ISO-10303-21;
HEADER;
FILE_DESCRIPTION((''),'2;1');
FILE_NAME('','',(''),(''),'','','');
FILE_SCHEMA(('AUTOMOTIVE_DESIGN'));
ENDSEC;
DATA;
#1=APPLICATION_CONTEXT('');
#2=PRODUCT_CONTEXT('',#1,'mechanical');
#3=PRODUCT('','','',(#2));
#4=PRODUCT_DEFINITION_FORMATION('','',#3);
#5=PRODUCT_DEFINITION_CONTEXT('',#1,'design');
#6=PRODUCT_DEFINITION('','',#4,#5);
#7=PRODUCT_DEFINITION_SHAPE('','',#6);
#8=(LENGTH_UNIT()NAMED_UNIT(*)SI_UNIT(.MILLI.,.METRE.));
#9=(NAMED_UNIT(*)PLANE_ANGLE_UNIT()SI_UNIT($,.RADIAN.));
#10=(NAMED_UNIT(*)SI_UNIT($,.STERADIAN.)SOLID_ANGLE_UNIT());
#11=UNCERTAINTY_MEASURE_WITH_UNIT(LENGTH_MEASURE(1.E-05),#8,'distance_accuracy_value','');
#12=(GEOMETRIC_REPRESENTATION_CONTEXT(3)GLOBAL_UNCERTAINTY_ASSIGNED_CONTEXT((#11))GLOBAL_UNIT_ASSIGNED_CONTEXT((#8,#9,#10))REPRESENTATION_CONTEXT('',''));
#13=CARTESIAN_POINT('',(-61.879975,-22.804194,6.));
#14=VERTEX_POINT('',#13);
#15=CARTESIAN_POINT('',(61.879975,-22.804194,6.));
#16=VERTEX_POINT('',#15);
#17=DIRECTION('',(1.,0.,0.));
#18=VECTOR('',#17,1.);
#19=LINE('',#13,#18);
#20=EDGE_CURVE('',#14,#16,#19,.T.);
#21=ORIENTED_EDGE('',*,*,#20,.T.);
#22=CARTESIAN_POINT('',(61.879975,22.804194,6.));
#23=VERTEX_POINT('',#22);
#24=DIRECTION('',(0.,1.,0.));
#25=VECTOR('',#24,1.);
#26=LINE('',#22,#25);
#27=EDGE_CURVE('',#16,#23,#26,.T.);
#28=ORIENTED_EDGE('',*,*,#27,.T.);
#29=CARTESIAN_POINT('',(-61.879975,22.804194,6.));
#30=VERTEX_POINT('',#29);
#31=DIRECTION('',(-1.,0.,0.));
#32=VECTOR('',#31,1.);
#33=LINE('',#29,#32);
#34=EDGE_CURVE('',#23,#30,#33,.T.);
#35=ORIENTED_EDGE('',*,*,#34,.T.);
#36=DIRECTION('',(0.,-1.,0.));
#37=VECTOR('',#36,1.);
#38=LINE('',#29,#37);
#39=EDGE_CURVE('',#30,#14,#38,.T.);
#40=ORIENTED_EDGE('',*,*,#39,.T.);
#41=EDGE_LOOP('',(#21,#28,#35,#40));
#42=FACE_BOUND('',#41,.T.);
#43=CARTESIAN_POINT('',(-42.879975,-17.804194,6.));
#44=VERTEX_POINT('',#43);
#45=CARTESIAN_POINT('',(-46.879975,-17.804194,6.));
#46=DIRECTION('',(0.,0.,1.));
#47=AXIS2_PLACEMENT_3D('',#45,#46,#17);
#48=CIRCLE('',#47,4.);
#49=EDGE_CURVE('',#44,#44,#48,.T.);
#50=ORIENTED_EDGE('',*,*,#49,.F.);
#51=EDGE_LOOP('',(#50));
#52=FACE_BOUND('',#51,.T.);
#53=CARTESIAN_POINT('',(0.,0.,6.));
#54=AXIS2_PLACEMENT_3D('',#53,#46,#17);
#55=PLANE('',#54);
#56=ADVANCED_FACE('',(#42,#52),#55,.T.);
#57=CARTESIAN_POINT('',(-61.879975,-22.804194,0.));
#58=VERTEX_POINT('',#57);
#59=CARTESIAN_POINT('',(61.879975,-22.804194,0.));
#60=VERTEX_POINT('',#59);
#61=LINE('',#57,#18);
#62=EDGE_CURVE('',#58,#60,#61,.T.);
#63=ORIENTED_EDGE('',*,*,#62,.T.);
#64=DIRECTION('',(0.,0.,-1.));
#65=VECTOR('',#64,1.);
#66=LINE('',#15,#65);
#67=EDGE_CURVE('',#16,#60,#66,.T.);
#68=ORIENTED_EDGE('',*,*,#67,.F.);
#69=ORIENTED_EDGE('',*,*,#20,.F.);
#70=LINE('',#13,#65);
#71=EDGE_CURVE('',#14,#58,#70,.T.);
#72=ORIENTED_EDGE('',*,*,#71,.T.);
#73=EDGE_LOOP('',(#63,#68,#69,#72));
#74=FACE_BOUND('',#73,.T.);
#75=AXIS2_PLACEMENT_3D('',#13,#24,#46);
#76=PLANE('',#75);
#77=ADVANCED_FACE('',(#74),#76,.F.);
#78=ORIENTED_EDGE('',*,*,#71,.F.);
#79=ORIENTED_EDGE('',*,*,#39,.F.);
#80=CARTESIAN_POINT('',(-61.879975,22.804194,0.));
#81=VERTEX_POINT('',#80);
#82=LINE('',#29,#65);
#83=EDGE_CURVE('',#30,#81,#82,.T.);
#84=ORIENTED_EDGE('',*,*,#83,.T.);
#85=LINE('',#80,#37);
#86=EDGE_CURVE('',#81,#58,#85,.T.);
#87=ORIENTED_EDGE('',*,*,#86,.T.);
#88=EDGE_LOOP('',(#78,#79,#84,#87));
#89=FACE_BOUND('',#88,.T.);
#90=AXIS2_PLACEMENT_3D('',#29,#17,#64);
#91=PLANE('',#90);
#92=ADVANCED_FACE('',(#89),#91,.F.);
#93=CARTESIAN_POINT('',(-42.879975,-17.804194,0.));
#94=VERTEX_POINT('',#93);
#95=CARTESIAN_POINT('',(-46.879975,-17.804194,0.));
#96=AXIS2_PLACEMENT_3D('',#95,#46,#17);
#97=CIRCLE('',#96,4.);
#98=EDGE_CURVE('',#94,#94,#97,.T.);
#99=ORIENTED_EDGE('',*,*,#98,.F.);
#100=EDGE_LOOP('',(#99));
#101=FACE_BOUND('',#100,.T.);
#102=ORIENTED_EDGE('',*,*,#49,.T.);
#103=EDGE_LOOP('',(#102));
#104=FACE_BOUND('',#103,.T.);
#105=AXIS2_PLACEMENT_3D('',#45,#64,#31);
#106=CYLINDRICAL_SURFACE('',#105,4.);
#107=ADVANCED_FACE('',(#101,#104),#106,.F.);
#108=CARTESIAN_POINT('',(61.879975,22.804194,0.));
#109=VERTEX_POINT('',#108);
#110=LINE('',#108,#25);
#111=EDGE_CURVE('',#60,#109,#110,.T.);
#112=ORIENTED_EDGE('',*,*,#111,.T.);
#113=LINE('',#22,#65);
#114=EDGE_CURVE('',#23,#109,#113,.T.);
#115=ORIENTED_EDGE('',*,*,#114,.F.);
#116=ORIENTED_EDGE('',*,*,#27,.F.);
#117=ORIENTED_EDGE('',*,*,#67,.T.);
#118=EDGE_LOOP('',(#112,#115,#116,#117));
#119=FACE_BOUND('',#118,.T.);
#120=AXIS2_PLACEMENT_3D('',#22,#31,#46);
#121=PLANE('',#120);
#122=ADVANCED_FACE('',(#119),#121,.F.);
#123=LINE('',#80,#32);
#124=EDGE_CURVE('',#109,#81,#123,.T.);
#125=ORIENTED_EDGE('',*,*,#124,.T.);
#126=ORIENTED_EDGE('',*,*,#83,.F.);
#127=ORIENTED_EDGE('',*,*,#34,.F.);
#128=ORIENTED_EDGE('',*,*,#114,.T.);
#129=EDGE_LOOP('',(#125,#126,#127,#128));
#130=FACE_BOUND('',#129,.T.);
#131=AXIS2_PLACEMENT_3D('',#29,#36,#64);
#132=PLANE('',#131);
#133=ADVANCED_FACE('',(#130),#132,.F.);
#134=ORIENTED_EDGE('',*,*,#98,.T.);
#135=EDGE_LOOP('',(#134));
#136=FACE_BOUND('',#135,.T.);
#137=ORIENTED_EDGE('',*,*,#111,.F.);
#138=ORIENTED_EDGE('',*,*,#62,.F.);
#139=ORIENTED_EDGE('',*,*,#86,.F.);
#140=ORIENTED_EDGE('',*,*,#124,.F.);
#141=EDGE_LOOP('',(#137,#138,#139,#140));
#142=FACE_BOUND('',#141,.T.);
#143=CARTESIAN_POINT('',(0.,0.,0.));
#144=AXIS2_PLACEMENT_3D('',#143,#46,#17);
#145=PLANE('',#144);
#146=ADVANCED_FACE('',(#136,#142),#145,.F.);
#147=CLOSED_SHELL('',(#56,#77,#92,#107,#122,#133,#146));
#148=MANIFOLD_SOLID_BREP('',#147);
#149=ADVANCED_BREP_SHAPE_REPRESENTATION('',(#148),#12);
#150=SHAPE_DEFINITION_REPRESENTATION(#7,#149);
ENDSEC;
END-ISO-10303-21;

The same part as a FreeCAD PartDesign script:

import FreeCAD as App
import Part
import Sketcher

doc = App.newDocument("Part")
body = doc.addObject("PartDesign::Body", "Body")

# Sketch on XY plane
sketch1 = body.newObject("Sketcher::SketchObject", "Sketch")
sketch1.AttachmentSupport = (doc.getObject("XY_Plane"), [""])
sketch1.MapMode = "FlatFace"
sketch1.addGeometry([
    Part.LineSegment(App.Vector(-61.9, 22.8, 0), App.Vector(-61.9, -22.8, 0)),  # 0
    Part.LineSegment(App.Vector(-61.9, -22.8, 0), App.Vector(61.9, -22.8, 0)),  # 1
    Part.LineSegment(App.Vector(61.9, -22.8, 0), App.Vector(61.9, 22.8, 0)),  # 2
    Part.LineSegment(App.Vector(61.9, 22.8, 0), App.Vector(-61.9, 22.8, 0)),  # 3
    Part.Circle(App.Vector(-46.9, -17.8, 0), App.Vector(0, 0, 1), 4),  # 4
], False)
sketch1.addConstraint([
    Sketcher.Constraint("Coincident", 0, 2, 1, 1),
    Sketcher.Constraint("Coincident", 1, 2, 2, 1),
    Sketcher.Constraint("Coincident", 2, 2, 3, 1),
    Sketcher.Constraint("Coincident", 3, 2, 0, 1),
    Sketcher.Constraint("Vertical", 0),
    Sketcher.Constraint("Horizontal", 1),
    Sketcher.Constraint("Vertical", 2),
    Sketcher.Constraint("Horizontal", 3),
    Sketcher.Constraint("Symmetric", 0, 2, 2, 2, -1, 1),
    Sketcher.Constraint("Diameter", 4, 8.0),
    Sketcher.Constraint("DistanceX", 0, 2, 4, 3, 15.0),
    Sketcher.Constraint("DistanceY", 0, 2, 4, 3, 5.0),
    Sketcher.Constraint("DistanceX", 1, 1, 1, 2, 123.75995),
    Sketcher.Constraint("DistanceY", 0, 2, 0, 1, 45.608387),
])
pad1 = body.newObject("PartDesign::Pad", "Pad")
pad1.Profile = sketch1
pad1.Length = 6

doc.recompute()
